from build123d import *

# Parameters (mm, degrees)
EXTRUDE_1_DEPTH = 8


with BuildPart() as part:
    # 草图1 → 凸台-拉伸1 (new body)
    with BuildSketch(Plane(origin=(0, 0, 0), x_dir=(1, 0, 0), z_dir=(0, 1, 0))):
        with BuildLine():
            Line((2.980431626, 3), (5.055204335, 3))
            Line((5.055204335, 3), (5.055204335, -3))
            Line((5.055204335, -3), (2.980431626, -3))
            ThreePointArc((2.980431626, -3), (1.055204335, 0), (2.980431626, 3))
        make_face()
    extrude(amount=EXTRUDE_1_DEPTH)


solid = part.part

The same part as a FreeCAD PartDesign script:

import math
import FreeCAD as App
import Part
import Sketcher
Q = App.Units.Quantity

doc = App.newDocument("Part")
params = doc.addObject("Spreadsheet::Sheet", "Params")
for row, (alias, value) in enumerate([
    ("sketch1_radius", "3.3 mm"),
    ("sketch1_height", "6 mm"),
    ("pad1_length", "8 mm"),
], start=1):
    params.set(f"A{row}", alias)
    params.set(f"B{row}", "=" + value)
    params.setAlias(f"B{row}", alias)

body = doc.addObject("PartDesign::Body", "Body")

# Sketch on XZ plane
sketch1 = body.newObject("Sketcher::SketchObject", "Sketch")
sketch1.AttachmentSupport = (doc.getObject("XZ_Plane"), [""])
sketch1.MapMode = "FlatFace"
sketch1.addGeometry(Part.LineSegment(App.Vector(5.055204, -3, 0), App.Vector(2.980432, -3, 0)), False)
sketch1.addGeometry(Part.ArcOfCircle(Part.Circle(App.Vector(4.355204, 0, 0), App.Vector(0, 0, 1), 3.3), math.radians(114.619977), math.radians(245.380023)), False)
sketch1.addGeometry(Part.LineSegment(App.Vector(2.980432, 3, 0), App.Vector(5.055204, 3, 0)), False)
sketch1.addGeometry(Part.LineSegment(App.Vector(5.055204, 3, 0), App.Vector(5.055204, -3, 0)), False)
sketch1.addConstraint(Sketcher.Constraint("Coincident", 0, 2, 1, 2))
sketch1.addConstraint(Sketcher.Constraint("Coincident", 1, 1, 2, 1))
sketch1.addConstraint(Sketcher.Constraint("Coincident", 2, 2, 3, 1))
sketch1.addConstraint(Sketcher.Constraint("Coincident", 3, 2, 0, 1))
sketch1.addConstraint(Sketcher.Constraint("Horizontal", 0))
sketch1.addConstraint(Sketcher.Constraint("Horizontal", 2))
sketch1.addConstraint(Sketcher.Constraint("Vertical", 3))
sketch1.addConstraint(Sketcher.Constraint("Symmetric", 0, 2, 1, 1, -1))
sketch1.addConstraint(Sketcher.Constraint("Radius", 1, Q("3.3 mm")))
sketch1.addConstraint(Sketcher.Constraint("DistanceY", 3, 2, 3, 1, Q("6 mm")))
sketch1.addConstraint(Sketcher.Constraint("DistanceX", 1, 3, 2, 2, Q("0.7 mm")))
sketch1.addConstraint(Sketcher.Constraint("DistanceX", -1, 1, 0, 2, Q("2.980432 mm")))
sketch1.setExpression("Constraints[8]", "Params.sketch1_radius")
sketch1.setExpression("Constraints[9]", "Params.sketch1_height")
pad1 = body.newObject("PartDesign::Pad", "Pad")
pad1.Profile = sketch1
pad1.setExpression("Length", "Params.pad1_length")
pad1.Reversed = True

doc.recompute()
